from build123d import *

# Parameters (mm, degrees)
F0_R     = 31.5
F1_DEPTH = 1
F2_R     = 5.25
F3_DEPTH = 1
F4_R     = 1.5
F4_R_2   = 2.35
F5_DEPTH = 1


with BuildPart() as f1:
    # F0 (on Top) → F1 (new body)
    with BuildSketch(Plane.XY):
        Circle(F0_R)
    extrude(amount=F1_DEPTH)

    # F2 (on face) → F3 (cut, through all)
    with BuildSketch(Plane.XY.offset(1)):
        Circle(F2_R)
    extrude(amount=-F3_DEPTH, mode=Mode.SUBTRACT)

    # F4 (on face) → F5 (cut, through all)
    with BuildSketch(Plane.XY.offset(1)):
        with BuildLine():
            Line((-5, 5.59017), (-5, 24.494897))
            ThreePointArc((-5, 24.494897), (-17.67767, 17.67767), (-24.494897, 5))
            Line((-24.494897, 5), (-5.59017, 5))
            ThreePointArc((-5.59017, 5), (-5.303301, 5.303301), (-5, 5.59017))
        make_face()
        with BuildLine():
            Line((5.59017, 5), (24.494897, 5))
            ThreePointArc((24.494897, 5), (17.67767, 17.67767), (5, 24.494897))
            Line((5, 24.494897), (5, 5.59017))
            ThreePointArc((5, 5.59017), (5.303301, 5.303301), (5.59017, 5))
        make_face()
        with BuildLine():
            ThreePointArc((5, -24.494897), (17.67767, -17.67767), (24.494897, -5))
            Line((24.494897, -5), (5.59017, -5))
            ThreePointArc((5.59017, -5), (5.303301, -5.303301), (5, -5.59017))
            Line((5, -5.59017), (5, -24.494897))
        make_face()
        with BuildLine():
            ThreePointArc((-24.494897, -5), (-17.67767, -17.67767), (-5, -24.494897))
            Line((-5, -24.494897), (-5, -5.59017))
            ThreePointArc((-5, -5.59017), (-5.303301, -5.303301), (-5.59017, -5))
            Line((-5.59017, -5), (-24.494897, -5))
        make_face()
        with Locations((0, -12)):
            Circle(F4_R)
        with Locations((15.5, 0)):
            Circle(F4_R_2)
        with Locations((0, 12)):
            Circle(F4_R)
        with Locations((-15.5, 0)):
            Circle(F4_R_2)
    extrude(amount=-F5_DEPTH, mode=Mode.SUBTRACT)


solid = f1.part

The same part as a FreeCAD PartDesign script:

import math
import FreeCAD as App
import Part
import Sketcher

V = App.Vector
Q = App.Units.Quantity

doc = App.newDocument("Part")
body = doc.addObject("PartDesign::Body", "Body")

# Sketch on XY plane
sketch1 = doc.addObject("Sketcher::SketchObject", "Sketch")
body.addObject(sketch1)
sketch1.AttachmentSupport = (doc.XY_Plane, [""])
sketch1.MapMode = "FlatFace"
sketch1.addGeometry(Part.Circle(V(0, 0, 0), V(0, 0, 1), 32), False)
sketch1.addConstraint([
    Sketcher.Constraint("Coincident", 0, 3, -1, 1),
    Sketcher.Constraint("Diameter", 0, Q("63 mm")),
])
pad1 = doc.addObject("PartDesign::Pad", "Pad")
body.addObject(pad1)
pad1.Profile = sketch1
pad1.Length = 1

# Sketch on XY plane
sketch2 = doc.addObject("Sketcher::SketchObject", "Sketch001")
body.addObject(sketch2)
sketch2.AttachmentSupport = (doc.XY_Plane, [""])
sketch2.MapMode = "FlatFace"
sketch2.AttachmentOffset = App.Placement(V(0, 0, 1), App.Rotation())
sketch2.addGeometry(Part.Circle(V(0, 0, 0), V(0, 0, 1), 5), False)
sketch2.addConstraint([
    Sketcher.Constraint("Coincident", 0, 3, -1, 1),
    Sketcher.Constraint("Diameter", 0, Q("10.5 mm")),
])
pocket1 = doc.addObject("PartDesign::Pocket", "Pocket")
body.addObject(pocket1)
pocket1.Profile = sketch2
pocket1.Type = "ThroughAll"

# Sketch on XY plane
sketch3 = doc.addObject("Sketcher::SketchObject", "Sketch002")
body.addObject(sketch3)
sketch3.AttachmentSupport = (doc.XY_Plane, [""])
sketch3.MapMode = "FlatFace"
sketch3.AttachmentOffset = App.Placement(V(0, 0, 1), App.Rotation())
sketch3.addGeometry([
    Part.LineSegment(V(-5, 5.59017, 0), V(-5, 24.494897, 0)),  # 0
    Part.ArcOfCircle(Part.Circle(V(-0.000005, 0.000005, 0), V(0, 0, 1), 24.999994), math.radians(101.536951), math.radians(168.463049)),  # 1
    Part.LineSegment(V(-24.494897, 5, 0), V(-5.59017, 5, 0)),  # 2
    Part.ArcOfCircle(Part.Circle(V(-0.000072, 0.000072, 0), V(0, 0, 1), 7.499898), math.radians(131.810271), math.radians(138.189729)),  # 3
    Part.LineSegment(V(5.59017, 5, 0), V(24.494897, 5, 0)),  # 4
    Part.ArcOfCircle(Part.Circle(V(0.000005, 0.000005, 0), V(0, 0, 1), 24.999994), math.radians(11.536951), math.radians(78.463049)),  # 5
    Part.LineSegment(V(5, 24.494897, 0), V(5, 5.59017, 0)),  # 6
    Part.ArcOfCircle(Part.Circle(V(0.000072, 0.000072, 0), V(0, 0, 1), 7.499898), math.radians(41.810271), math.radians(48.189729)),  # 7
    Part.ArcOfCircle(Part.Circle(V(0.000005, -0.000005, 0), V(0, 0, 1), 24.999994), math.radians(-78.463049), math.radians(-11.536951)),  # 8
    Part.LineSegment(V(24.494897, -5, 0), V(5.59017, -5, 0)),  # 9
    Part.ArcOfCircle(Part.Circle(V(0.000072, -0.000072, 0), V(0, 0, 1), 7.499898), math.radians(-48.189729), math.radians(-41.810271)),  # 10
    Part.LineSegment(V(5, -5.59017, 0), V(5, -24.494897, 0)),  # 11
    Part.ArcOfCircle(Part.Circle(V(-0.000005, -0.000005, 0), V(0, 0, 1), 24.999994), math.radians(-168.463049), math.radians(-101.536951)),  # 12
    Part.LineSegment(V(-5, -24.494897, 0), V(-5, -5.59017, 0)),  # 13
    Part.ArcOfCircle(Part.Circle(V(-0.000072, -0.000072, 0), V(0, 0, 1), 7.499898), math.radians(-138.189729), math.radians(-131.810271)),  # 14
    Part.LineSegment(V(-5.59017, -5, 0), V(-24.494897, -5, 0)),  # 15
    Part.Circle(V(0, -12, 0), V(0, 0, 1), 1.5),  # 16
    Part.Circle(V(15.5, 0, 0), V(0, 0, 1), 2.35),  # 17
    Part.Circle(V(0, 12, 0), V(0, 0, 1), 1.5),  # 18
    Part.Circle(V(-15.5, 0, 0), V(0, 0, 1), 2.35),  # 19
], False)
sketch3.addConstraint([
    Sketcher.Constraint("Coincident", 0, 2, 1, 1),
    Sketcher.Constraint("Coincident", 1, 2, 2, 1),
    Sketcher.Constraint("Coincident", 2, 2, 3, 2),
    Sketcher.Constraint("Coincident", 3, 1, 0, 1),
    Sketcher.Constraint("Coincident", 4, 2, 5, 1),
    Sketcher.Constraint("Coincident", 5, 2, 6, 1),
    Sketcher.Constraint("Coincident", 6, 2, 7, 2),
    Sketcher.Constraint("Coincident", 7, 1, 4, 1),
    Sketcher.Constraint("Coincident", 8, 2, 9, 1),
    Sketcher.Constraint("Coincident", 9, 2, 10, 2),
    Sketcher.Constraint("Coincident", 10, 1, 11, 1),
    Sketcher.Constraint("Coincident", 11, 2, 8, 1),
    Sketcher.Constraint("Coincident", 12, 2, 13, 1),
    Sketcher.Constraint("Coincident", 13, 2, 14, 2),
    Sketcher.Constraint("Coincident", 14, 1, 15, 1),
    Sketcher.Constraint("Coincident", 15, 2, 12, 1),
    Sketcher.Constraint("Vertical", 0),
    Sketcher.Constraint("Horizontal", 2),
    Sketcher.Constraint("Horizontal", 4),
    Sketcher.Constraint("Vertical", 6),
    Sketcher.Constraint("Horizontal", 9),
    Sketcher.Constraint("Vertical", 11),
    Sketcher.Constraint("Vertical", 13),
    Sketcher.Constraint("Horizontal", 15),
    Sketcher.Constraint("Coincident", 1, 3, -1, 1),
    Sketcher.Constraint("Coincident", 5, 3, -1, 1),
    Sketcher.Constraint("Coincident", 8, 3, -1, 1),
    Sketcher.Constraint("Coincident", 12, 3, -1, 1),
    Sketcher.Constraint("Equal", 1, 5),
    Sketcher.Constraint("Equal", 3, 7),
    Sketcher.Constraint("Equal", 5, 8),
    Sketcher.Constraint("Equal", 7, 10),
    Sketcher.Constraint("Equal", 8, 12),
    Sketcher.Constraint("Equal", 10, 14),
    Sketcher.Constraint("Equal", 16, 18),
    Sketcher.Constraint("Equal", 17, 19),
    Sketcher.Constraint("Symmetric", 3, 3, 10, 3, -1, 1),
    Sketcher.Constraint("Symmetric", 7, 3, 14, 3, -1, 1),
    Sketcher.Constraint("Symmetric", 16, 3, 18, 3, -1, 1),
    Sketcher.Constraint("Symmetric", 17, 3, 19, 3, -1, 1),
    Sketcher.Constraint("Symmetric", 3, 3, 7, 3, -2),
    Sketcher.Constraint("PointOnObject", 16, 3, -2),
    Sketcher.Constraint("PointOnObject", 17, 3, -1),
    Sketcher.Constraint("Horizontal", 2, 2, 4, 2),
    Sketcher.Constraint("Horizontal", 0, 2, 5, 2),
    Sketcher.Constraint("Horizontal", 11, 2, 12, 2),
    Sketcher.Constraint("Horizontal", 9, 2, 14, 1),
    Sketcher.Constraint("Vertical", 4, 2, 8, 2),
    Sketcher.Constraint("Vertical", 6, 2, 10, 1),
    Sketcher.Constraint("Equal", 15, 0),
    Sketcher.Constraint("Diameter", 16, Q("3 mm")),
    Sketcher.Constraint("Diameter", 17, Q("4.7 mm")),
    Sketcher.Constraint("DistanceY", 16, 3, -1, 1, Q("12 mm")),
    Sketcher.Constraint("DistanceX", 0, 2, -1, 1, Q("5 mm")),
    Sketcher.Constraint("DistanceY", -1, 1, 1, 2, Q("5 mm")),
    Sketcher.Constraint("DistanceX", -1, 1, 17, 3, Q("15.5 mm")),
    Sketcher.Constraint("Radius", 3, Q("7.499898 mm")),
    Sketcher.Constraint("Radius", 1, Q("24.999994 mm")),
    Sketcher.Constraint("DistanceX", 2, 2, 3, 3, Q("5.590098 mm")),
])
pocket2 = doc.addObject("PartDesign::Pocket", "Pocket001")
body.addObject(pocket2)
pocket2.Profile = sketch3
pocket2.Type = "ThroughAll"

doc.recompute()
